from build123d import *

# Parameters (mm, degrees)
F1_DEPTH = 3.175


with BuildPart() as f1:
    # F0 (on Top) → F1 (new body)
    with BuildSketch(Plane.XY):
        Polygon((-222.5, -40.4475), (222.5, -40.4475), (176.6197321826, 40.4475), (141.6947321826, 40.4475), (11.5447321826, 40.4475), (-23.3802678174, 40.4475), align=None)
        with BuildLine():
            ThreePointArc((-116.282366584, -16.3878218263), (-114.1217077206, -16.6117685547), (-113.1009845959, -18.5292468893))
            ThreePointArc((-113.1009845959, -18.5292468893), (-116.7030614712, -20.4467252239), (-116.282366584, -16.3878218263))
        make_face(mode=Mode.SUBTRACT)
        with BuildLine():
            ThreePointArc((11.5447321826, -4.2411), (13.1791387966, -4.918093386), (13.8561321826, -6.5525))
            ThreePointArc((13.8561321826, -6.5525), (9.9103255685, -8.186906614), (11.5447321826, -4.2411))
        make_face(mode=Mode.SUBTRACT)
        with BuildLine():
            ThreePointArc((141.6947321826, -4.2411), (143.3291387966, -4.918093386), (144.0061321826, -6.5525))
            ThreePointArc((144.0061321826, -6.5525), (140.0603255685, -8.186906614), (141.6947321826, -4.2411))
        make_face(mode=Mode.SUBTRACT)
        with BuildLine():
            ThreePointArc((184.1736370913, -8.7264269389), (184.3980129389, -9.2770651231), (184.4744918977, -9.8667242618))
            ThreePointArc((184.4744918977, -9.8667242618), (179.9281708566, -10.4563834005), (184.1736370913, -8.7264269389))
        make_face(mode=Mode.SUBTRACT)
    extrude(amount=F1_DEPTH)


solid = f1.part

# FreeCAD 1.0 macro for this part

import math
import FreeCAD as App
import Part
import Sketcher

doc = App.newDocument("Part")
body = doc.addObject("PartDesign::Body", "Body")

# Sketch on XY plane
sketch1 = body.newObject("Sketcher::SketchObject", "Sketch")
sketch1.AttachmentSupport = (doc.getObject("XY_Plane"), [""])
sketch1.MapMode = "FlatFace"
sketch1.addGeometry([
    Part.LineSegment(App.Vector(-222.5, -40.4475, 0), App.Vector(222.5, -40.4475, 0)),  # 0
    Part.LineSegment(App.Vector(222.5, -40.4475, 0), App.Vector(176.619732, 40.4475, 0)),  # 1
    Part.LineSegment(App.Vector(176.619732, 40.4475, 0), App.Vector(-23.380268, 40.4475, 0)),  # 2
    Part.LineSegment(App.Vector(-23.380268, 40.4475, 0), App.Vector(-222.5, -40.4475, 0)),  # 3
    Part.ArcOfCircle(Part.Circle(App.Vector(-115.412385, -18.529247, 0), App.Vector(0, 0, 1), 2.3114), math.radians(112.110093), math.radians(360)),  # 4
    Part.ArcOfCircle(Part.Circle(App.Vector(-115.412385, -18.529247, 0), App.Vector(0, 0, 1), 2.3114), math.radians(0), math.radians(112.110093)),  # 5
    Part.ArcOfCircle(Part.Circle(App.Vector(11.544732, -6.5525, 0), App.Vector(0, 0, 1), 2.3114), math.radians(90), math.radians(360)),  # 6
    Part.ArcOfCircle(Part.Circle(App.Vector(11.544732, -6.5525, 0), App.Vector(0, 0, 1), 2.3114), math.radians(0), math.radians(90)),  # 7
    Part.ArcOfCircle(Part.Circle(App.Vector(182.163092, -9.866724, 0), App.Vector(0, 0, 1), 2.3114), math.radians(29.560098), math.radians(360)),  # 8
    Part.ArcOfCircle(Part.Circle(App.Vector(182.163092, -9.866724, 0), App.Vector(0, 0, 1), 2.3114), math.radians(0), math.radians(29.560098)),  # 9
    Part.ArcOfCircle(Part.Circle(App.Vector(141.694732, -6.5525, 0), App.Vector(0, 0, 1), 2.3114), math.radians(90), math.radians(360)),  # 10
    Part.ArcOfCircle(Part.Circle(App.Vector(141.694732, -6.5525, 0), App.Vector(0, 0, 1), 2.3114), math.radians(0), math.radians(90)),  # 11
], False)
sketch1.addConstraint([
    Sketcher.Constraint("Coincident", 0, 2, 1, 1),
    Sketcher.Constraint("Coincident", 1, 2, 2, 1),
    Sketcher.Constraint("Coincident", 2, 2, 3, 1),
    Sketcher.Constraint("Coincident", 3, 2, 0, 1),
    Sketcher.Constraint("Tangent", 4, 1, 5, 2),
    Sketcher.Constraint("Coincident", 5, 1, 4, 2),
    Sketcher.Constraint("Tangent", 6, 1, 7, 2),
    Sketcher.Constraint("Coincident", 7, 1, 6, 2),
    Sketcher.Constraint("Tangent", 8, 1, 9, 2),
    Sketcher.Constraint("Coincident", 9, 1, 8, 2),
    Sketcher.Constraint("Tangent", 10, 1, 11, 2),
    Sketcher.Constraint("Coincident", 11, 1, 10, 2),
    Sketcher.Constraint("Horizontal", 0),
    Sketcher.Constraint("Horizontal", 2),
    Sketcher.Constraint("Equal", 5, 6),
    Sketcher.Constraint("Equal", 7, 8),
    Sketcher.Constraint("Equal", 9, 10),
    Sketcher.Constraint("Horizontal", 7, 3, 10, 3),
    Sketcher.Constraint("Horizontal", 4, 3, 5, 1),
    Sketcher.Constraint("Horizontal", 11, 3, 7, 1),
    Sketcher.Constraint("Horizontal", 8, 3, 9, 1),
    Sketcher.Constraint("Horizontal", 7, 1, 11, 1),
    Sketcher.Constraint("Vertical", 7, 3, 6, 1),
    Sketcher.Constraint("Vertical", 11, 3, 10, 1),
    Sketcher.Constraint("DistanceX", 0, 1, 0, 2, 445.0),
    Sketcher.Constraint("DistanceX", 2, 2, 2, 1, 200.0),
    Sketcher.Constraint("Distance", 1, 93.0),
    Sketcher.Constraint("DistanceY", 10, 3, 1, 2, 47.0),
    Sketcher.Constraint("DistanceX", -1, 1, 0, 2, 222.5),
    Sketcher.Constraint("Radius", 4, 2.3114),
    Sketcher.Constraint("DistanceX", 6, 3, 10, 3, 130.15),
    Sketcher.Constraint("DistanceY", 0, 2, 10, 3, 33.895),
    Sketcher.Constraint("DistanceX", 10, 3, 1, 2, 34.925),
    Sketcher.Constraint("DistanceY", 6, 3, -1, 1, 6.5525),
    Sketcher.Constraint("DistanceX", 4, 1, 2, 2, 92.902099),
    Sketcher.Constraint("DistanceX", -1, 1, 8, 3, 182.163092),
    Sketcher.Constraint("DistanceY", 4, 1, -1, 1, 16.387822),
    Sketcher.Constraint("DistanceX", 4, 1, 4, 3, 0.869982),
    Sketcher.Constraint("DistanceY", 8, 3, -1, 1, 9.866724),
    Sketcher.Constraint("DistanceX", -1, 1, 8, 1, 184.173637),
])
pad1 = body.newObject("PartDesign::Pad", "Pad")
pad1.Profile = sketch1
pad1.Length = 3.175

doc.recompute()
